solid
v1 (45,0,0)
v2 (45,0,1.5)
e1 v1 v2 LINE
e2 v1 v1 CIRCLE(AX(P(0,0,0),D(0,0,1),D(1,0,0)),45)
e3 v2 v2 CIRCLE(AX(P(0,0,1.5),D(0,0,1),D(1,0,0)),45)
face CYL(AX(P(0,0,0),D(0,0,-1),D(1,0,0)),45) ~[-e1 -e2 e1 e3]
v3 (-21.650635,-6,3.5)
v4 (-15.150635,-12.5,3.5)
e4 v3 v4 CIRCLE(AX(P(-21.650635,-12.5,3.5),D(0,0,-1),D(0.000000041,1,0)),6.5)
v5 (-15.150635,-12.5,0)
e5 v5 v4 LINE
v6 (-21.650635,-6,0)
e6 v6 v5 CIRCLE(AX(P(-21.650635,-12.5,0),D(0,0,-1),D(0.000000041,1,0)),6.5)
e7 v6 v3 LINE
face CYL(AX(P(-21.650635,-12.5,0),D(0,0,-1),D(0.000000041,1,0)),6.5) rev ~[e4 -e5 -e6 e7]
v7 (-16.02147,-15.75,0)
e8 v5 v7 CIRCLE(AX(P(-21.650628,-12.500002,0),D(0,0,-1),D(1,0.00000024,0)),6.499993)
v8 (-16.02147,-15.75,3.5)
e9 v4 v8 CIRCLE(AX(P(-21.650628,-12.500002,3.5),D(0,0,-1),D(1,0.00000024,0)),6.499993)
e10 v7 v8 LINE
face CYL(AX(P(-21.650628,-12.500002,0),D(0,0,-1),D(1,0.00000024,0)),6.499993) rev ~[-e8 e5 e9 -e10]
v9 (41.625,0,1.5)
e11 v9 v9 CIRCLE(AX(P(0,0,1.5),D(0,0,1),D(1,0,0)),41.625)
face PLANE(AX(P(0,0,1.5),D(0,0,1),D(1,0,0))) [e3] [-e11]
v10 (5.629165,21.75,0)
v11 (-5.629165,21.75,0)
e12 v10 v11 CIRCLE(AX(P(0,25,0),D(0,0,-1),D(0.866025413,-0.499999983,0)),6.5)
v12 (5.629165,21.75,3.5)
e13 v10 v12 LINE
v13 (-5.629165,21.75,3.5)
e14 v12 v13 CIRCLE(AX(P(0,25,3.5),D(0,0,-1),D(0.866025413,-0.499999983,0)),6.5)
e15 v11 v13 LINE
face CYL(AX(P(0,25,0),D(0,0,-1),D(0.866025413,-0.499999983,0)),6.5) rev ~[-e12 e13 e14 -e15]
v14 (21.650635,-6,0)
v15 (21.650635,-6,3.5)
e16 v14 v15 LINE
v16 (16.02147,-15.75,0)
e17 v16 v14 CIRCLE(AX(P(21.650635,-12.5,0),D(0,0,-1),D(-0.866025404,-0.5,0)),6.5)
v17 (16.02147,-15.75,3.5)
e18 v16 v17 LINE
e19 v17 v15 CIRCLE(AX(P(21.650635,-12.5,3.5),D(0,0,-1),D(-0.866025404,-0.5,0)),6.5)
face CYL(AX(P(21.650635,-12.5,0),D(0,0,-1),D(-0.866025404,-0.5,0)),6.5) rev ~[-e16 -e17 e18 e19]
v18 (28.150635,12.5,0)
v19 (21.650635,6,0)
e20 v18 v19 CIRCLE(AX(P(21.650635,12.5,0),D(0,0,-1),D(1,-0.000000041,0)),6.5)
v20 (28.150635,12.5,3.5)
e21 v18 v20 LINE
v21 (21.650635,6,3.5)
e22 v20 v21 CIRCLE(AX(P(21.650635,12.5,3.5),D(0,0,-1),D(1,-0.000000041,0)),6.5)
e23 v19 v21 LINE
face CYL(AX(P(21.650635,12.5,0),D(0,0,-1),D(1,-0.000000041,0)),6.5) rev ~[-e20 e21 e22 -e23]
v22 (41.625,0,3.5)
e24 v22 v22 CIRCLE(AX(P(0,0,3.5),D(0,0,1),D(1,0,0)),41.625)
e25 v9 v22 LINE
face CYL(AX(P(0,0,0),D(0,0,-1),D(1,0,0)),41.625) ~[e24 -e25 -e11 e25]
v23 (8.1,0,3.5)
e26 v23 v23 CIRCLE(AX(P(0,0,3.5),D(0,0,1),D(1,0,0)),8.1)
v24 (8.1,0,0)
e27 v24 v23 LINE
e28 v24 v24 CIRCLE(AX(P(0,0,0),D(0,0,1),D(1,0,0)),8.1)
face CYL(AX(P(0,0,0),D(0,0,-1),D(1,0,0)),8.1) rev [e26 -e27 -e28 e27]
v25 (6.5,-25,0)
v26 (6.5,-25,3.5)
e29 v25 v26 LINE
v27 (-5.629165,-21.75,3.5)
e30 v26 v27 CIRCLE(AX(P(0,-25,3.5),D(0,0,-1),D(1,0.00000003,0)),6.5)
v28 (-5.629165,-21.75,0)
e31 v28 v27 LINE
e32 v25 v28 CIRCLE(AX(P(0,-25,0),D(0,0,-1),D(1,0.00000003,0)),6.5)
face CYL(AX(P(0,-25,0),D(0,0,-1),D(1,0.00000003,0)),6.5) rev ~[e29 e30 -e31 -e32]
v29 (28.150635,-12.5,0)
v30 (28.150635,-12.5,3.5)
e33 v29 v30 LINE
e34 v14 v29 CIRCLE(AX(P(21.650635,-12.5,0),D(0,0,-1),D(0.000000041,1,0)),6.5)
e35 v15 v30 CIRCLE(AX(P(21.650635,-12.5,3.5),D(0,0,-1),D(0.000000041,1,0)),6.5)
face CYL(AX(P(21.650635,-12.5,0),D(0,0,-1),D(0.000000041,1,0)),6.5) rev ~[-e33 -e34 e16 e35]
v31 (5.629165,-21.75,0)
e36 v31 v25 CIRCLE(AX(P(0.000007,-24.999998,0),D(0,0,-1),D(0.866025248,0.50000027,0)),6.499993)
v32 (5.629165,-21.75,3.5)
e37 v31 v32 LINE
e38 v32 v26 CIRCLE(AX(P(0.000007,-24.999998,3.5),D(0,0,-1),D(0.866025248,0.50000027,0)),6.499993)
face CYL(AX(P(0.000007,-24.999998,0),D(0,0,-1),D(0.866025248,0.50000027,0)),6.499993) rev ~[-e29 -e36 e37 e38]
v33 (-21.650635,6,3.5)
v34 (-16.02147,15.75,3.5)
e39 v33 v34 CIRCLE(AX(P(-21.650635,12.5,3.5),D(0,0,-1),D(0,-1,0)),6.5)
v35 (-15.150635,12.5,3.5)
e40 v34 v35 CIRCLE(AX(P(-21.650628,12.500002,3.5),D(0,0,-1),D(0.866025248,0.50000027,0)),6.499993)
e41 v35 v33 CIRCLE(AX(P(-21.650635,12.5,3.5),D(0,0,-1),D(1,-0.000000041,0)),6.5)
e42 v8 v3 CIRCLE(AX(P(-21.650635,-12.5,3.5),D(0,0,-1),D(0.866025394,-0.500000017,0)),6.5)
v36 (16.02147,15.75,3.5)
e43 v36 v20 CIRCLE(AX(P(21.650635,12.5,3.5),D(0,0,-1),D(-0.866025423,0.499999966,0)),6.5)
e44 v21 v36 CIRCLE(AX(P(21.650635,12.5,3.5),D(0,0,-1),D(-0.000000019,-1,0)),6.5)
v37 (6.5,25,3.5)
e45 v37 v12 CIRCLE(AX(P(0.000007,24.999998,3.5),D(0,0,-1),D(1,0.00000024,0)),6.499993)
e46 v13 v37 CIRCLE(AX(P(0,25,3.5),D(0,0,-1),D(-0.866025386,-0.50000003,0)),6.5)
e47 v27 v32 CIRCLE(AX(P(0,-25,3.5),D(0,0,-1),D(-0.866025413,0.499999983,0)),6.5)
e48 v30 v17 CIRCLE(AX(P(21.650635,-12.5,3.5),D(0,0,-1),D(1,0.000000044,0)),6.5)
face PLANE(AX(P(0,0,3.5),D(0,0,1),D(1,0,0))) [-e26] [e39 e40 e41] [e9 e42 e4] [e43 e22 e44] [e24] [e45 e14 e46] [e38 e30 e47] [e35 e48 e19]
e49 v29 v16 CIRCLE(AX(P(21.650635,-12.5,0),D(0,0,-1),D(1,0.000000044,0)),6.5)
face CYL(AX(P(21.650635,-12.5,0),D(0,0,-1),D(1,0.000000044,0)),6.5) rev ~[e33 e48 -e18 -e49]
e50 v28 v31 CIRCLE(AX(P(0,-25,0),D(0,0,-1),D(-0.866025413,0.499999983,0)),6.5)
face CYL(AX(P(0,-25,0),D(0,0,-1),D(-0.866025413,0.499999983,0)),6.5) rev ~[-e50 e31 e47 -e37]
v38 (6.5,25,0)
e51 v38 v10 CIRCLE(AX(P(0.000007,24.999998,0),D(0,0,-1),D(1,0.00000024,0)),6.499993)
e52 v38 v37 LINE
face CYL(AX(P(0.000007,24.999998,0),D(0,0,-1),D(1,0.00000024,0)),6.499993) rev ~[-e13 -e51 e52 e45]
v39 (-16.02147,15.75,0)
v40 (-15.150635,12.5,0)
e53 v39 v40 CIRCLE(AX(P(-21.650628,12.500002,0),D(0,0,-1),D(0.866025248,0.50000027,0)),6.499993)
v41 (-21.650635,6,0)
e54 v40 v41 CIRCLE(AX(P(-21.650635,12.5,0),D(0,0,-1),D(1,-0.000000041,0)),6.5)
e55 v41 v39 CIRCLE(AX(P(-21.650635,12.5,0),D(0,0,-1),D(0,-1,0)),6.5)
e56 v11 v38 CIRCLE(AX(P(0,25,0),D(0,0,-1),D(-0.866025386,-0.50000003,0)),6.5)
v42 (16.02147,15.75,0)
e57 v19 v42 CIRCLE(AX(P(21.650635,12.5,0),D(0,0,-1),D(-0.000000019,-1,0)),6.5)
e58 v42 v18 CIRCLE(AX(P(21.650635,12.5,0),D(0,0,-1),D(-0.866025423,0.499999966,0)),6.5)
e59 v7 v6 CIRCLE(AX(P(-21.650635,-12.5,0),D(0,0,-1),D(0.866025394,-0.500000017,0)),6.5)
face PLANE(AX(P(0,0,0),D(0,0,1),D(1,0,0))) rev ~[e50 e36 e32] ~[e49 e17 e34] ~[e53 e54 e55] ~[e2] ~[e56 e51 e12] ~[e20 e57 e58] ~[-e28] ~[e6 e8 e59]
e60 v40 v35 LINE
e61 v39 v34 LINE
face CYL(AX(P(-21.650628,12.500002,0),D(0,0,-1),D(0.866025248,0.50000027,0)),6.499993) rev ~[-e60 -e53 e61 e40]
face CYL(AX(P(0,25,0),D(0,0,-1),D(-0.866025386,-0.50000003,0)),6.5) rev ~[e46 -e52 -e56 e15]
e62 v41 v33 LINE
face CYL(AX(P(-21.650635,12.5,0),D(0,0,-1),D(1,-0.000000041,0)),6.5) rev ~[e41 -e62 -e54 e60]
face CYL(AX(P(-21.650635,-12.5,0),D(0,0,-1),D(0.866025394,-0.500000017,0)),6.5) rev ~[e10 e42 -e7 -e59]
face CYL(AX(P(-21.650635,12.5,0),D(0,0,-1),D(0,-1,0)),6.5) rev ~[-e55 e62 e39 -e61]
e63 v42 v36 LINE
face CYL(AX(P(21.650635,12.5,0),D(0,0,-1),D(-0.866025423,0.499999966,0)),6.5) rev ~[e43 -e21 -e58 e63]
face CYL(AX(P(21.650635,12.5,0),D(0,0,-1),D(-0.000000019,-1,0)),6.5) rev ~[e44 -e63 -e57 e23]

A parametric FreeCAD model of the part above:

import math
import FreeCAD as App
import Part
import Sketcher

doc = App.newDocument("Part")
params = doc.addObject("Spreadsheet::Sheet", "Params")
for row, (alias, value) in enumerate([
    ("sketch1_diameter", "16.2 mm"),
    ("sketch1_radius", "6.5 mm"),
    ("sketch1_diameter2", "83.25 mm"),
    ("pad1_length", "3.5 mm"),
    ("sketch2_diameter", "90 mm"),
    ("sketch2_diameter2", "83.25 mm"),
    ("pad2_length", "1.5 mm"),
], start=1):
    params.set(f"A{row}", alias)
    params.set(f"B{row}", "=" + value)
    params.setAlias(f"B{row}", alias)

body = doc.addObject("PartDesign::Body", "Body")

# Sketch on XY plane
sketch1 = body.newObject("Sketcher::SketchObject", "Sketch")
sketch1.AttachmentSupport = (doc.getObject("XY_Plane"), [""])
sketch1.MapMode = "FlatFace"
sketch1.addGeometry(Part.Circle(App.Vector(0, 0, 0), App.Vector(0, 0, 1), 41.6), False)
sketch1.addGeometry(Part.ArcOfCircle(Part.Circle(App.Vector(0, -25, 0), App.Vector(0, 0, 1), 6.5), math.radians(150), math.radians(360)), False)
sketch1.addGeometry(Part.ArcOfCircle(Part.Circle(App.Vector(0, -25, 0), App.Vector(0, 0, 1), 6.5), math.radians(30), math.radians(150)), False)
sketch1.addGeometry(Part.ArcOfCircle(Part.Circle(App.Vector(0, -25, 0), App.Vector(0, 0, 1), 6.5), math.radians(0), math.radians(30)), False)
sketch1.addGeometry(Part.ArcOfCircle(Part.Circle(App.Vector(-21.7, -12.5, 0), App.Vector(0, 0, 1), 6.5), math.radians(90), math.radians(330)), False)
sketch1.addGeometry(Part.ArcOfCircle(Part.Circle(App.Vector(-21.7, -12.5, 0), App.Vector(0, 0, 1), 6.5), math.radians(0), math.radians(90)), False)
sketch1.addGeometry(Part.ArcOfCircle(Part.Circle(App.Vector(-21.7, -12.5, 0), App.Vector(0, 0, 1), 6.5), math.radians(-30), math.radians(0)), False)
sketch1.addGeometry(Part.ArcOfCircle(Part.Circle(App.Vector(21.7, -12.5, 0), App.Vector(0, 0, 1), 6.5), math.radians(-150), math.radians(0)), False)
sketch1.addGeometry(Part.ArcOfCircle(Part.Circle(App.Vector(21.7, -12.5, 0), App.Vector(0, 0, 1), 6.5), math.radians(90), math.radians(210)), False)
sketch1.addGeometry(Part.ArcOfCircle(Part.Circle(App.Vector(21.7, -12.5, 0), App.Vector(0, 0, 1), 6.5), math.radians(0), math.radians(90)), False)
sketch1.addGeometry(Part.ArcOfCircle(Part.Circle(App.Vector(-21.7, 12.5, 0), App.Vector(0, 0, 1), 6.5), math.radians(30), math.radians(270)), False)
sketch1.addGeometry(Part.ArcOfCircle(Part.Circle(App.Vector(-21.7, 12.5, 0), App.Vector(0, 0, 1), 6.5), math.radians(0), math.radians(30)), False)
sketch1.addGeometry(Part.ArcOfCircle(Part.Circle(App.Vector(-21.7, 12.5, 0), App.Vector(0, 0, 1), 6.5), math.radians(-90), math.radians(0)), False)
sketch1.addGeometry(Part.Circle(App.Vector(0, 0, 0), App.Vector(0, 0, 1), 8.1), False)
sketch1.addGeometry(Part.ArcOfCircle(Part.Circle(App.Vector(0, 25, 0), App.Vector(0, 0, 1), 6.5), math.radians(0), math.radians(210)), False)
sketch1.addGeometry(Part.ArcOfCircle(Part.Circle(App.Vector(0, 25, 0), App.Vector(0, 0, 1), 6.5), math.radians(-30), math.radians(0)), False)
sketch1.addGeometry(Part.ArcOfCircle(Part.Circle(App.Vector(0, 25, 0), App.Vector(0, 0, 1), 6.5), math.radians(-150), math.radians(-30)), False)
sketch1.addGeometry(Part.ArcOfCircle(Part.Circle(App.Vector(21.7, 12.5, 0), App.Vector(0, 0, 1), 6.5), math.radians(-90), math.radians(0)), False)
sketch1.addGeometry(Part.ArcOfCircle(Part.Circle(App.Vector(21.7, 12.5, 0), App.Vector(0, 0, 1), 6.5), math.radians(150), math.radians(270)), False)
sketch1.addGeometry(Part.ArcOfCircle(Part.Circle(App.Vector(21.7, 12.5, 0), App.Vector(0, 0, 1), 6.5), math.radians(0), math.radians(150)), False)
sketch1.addConstraint(Sketcher.Constraint("Tangent", 1, 1, 2, 2))
sketch1.addConstraint(Sketcher.Constraint("Tangent", 2, 1, 3, 2))
sketch1.addConstraint(Sketcher.Constraint("Tangent", 3, 1, 1, 2))
sketch1.addConstraint(Sketcher.Constraint("Tangent", 4, 1, 5, 2))
sketch1.addConstraint(Sketcher.Constraint("Tangent", 5, 1, 6, 2))
sketch1.addConstraint(Sketcher.Constraint("Tangent", 6, 1, 4, 2))
sketch1.addConstraint(Sketcher.Constraint("Tangent", 7, 1, 8, 2))
sketch1.addConstraint(Sketcher.Constraint("Tangent", 8, 1, 9, 2))
sketch1.addConstraint(Sketcher.Constraint("Tangent", 9, 1, 7, 2))
sketch1.addConstraint(Sketcher.Constraint("Tangent", 10, 1, 11, 2))
sketch1.addConstraint(Sketcher.Constraint("Tangent", 11, 1, 12, 2))
sketch1.addConstraint(Sketcher.Constraint("Tangent", 12, 1, 10, 2))
sketch1.addConstraint(Sketcher.Constraint("Tangent", 14, 1, 15, 2))
sketch1.addConstraint(Sketcher.Constraint("Tangent", 15, 1, 16, 2))
sketch1.addConstraint(Sketcher.Constraint("Tangent", 16, 1, 14, 2))
sketch1.addConstraint(Sketcher.Constraint("Tangent", 17, 1, 18, 2))
sketch1.addConstraint(Sketcher.Constraint("Tangent", 18, 1, 19, 2))
sketch1.addConstraint(Sketcher.Constraint("Tangent", 19, 1, 17, 2))
sketch1.addConstraint(Sketcher.Constraint("Coincident", 0, 3, -1, 1))
sketch1.addConstraint(Sketcher.Constraint("Coincident", 13, 3, -1, 1))
sketch1.addConstraint(Sketcher.Constraint("Equal", 2, 4))
sketch1.addConstraint(Sketcher.Constraint("Equal", 5, 7))
sketch1.addConstraint(Sketcher.Constraint("Equal", 9, 10))
sketch1.addConstraint(Sketcher.Constraint("Equal", 12, 14))
sketch1.addConstraint(Sketcher.Constraint("Equal", 16, 17))
sketch1.addConstraint(Sketcher.Constraint("Symmetric", 7, 3, 10, 3, -1, 1))
sketch1.addConstraint(Sketcher.Constraint("Symmetric", 1, 3, 14, 3, -1, 1))
sketch1.addConstraint(Sketcher.Constraint("Symmetric", 4, 3, 17, 3, -1, 1))
sketch1.addConstraint(Sketcher.Constraint("Symmetric", 4, 3, 7, 3, -2))
sketch1.addConstraint(Sketcher.Constraint("Symmetric", 1, 1, 2, 1, -2))
sketch1.addConstraint(Sketcher.Constraint("Horizontal", 2, 3, 3, 1))
sketch1.addConstraint(Sketcher.Constraint("Horizontal", 9, 3, 5, 1))
sketch1.addConstraint(Sketcher.Constraint("Horizontal", 6, 1, 7, 1))
sketch1.addConstraint(Sketcher.Constraint("Horizontal", 5, 1, 9, 1))
sketch1.addConstraint(Sketcher.Constraint("Horizontal", 19, 3, 11, 1))
sketch1.addConstraint(Sketcher.Constraint("Horizontal", 16, 3, 14, 1))
sketch1.addConstraint(Sketcher.Constraint("Horizontal", 15, 1, 16, 1))
sketch1.addConstraint(Sketcher.Constraint("Horizontal", 10, 1, 18, 1))
sketch1.addConstraint(Sketcher.Constraint("Horizontal", 11, 1, 19, 1))
sketch1.addConstraint(Sketcher.Constraint("Vertical", 12, 3, 4, 1))
sketch1.addConstraint(Sketcher.Constraint("Vertical", 19, 3, 8, 1))
sketch1.addConstraint(Sketcher.Constraint("Vertical", 6, 1, 10, 1))
sketch1.addConstraint(Sketcher.Constraint("Vertical", 4, 1, 12, 1))
sketch1.addConstraint(Sketcher.Constraint("Vertical", 2, 1, 15, 1))
sketch1.addConstraint(Sketcher.Constraint("Vertical", 8, 1, 17, 1))
sketch1.addConstraint(Sketcher.Constraint("Diameter", 13, 16.2))
sketch1.addConstraint(Sketcher.Constraint("Radius", 1, 6.5))
sketch1.addConstraint(Sketcher.Constraint("Diameter", 0, 83.25))
sketch1.addConstraint(Sketcher.Constraint("DistanceY", 1, 3, -1, 1, 25.0))
sketch1.addConstraint(Sketcher.Constraint("DistanceY", 4, 1, -1, 1, 6.0))
sketch1.addConstraint(Sketcher.Constraint("DistanceY", 2, 1, 7, 1, 6.0))
sketch1.addConstraint(Sketcher.Constraint("DistanceY", 1, 1, -1, 1, 21.75))
sketch1.addConstraint(Sketcher.Constraint("DistanceX", 6, 3, -1, 1, 21.650628))
sketch1.setExpression("Constraints[45]", "Params.sketch1_diameter")
sketch1.setExpression("Constraints[46]", "Params.sketch1_radius")
sketch1.setExpression("Constraints[47]", "Params.sketch1_diameter2")
pad1 = body.newObject("PartDesign::Pad", "Pad")
pad1.Profile = sketch1
pad1.setExpression("Length", "Params.pad1_length")

# Sketch on XY plane
sketch2 = body.newObject("Sketcher::SketchObject", "Sketch001")
sketch2.AttachmentSupport = (doc.getObject("XY_Plane"), [""])
sketch2.MapMode = "FlatFace"
sketch2.addGeometry(Part.Circle(App.Vector(0, 0, 0), App.Vector(0, 0, 1), 45), False)
sketch2.addGeometry(Part.Circle(App.Vector(0, 0, 0), App.Vector(0, 0, 1), 42), False)
sketch2.addConstraint(Sketcher.Constraint("Coincident", 0, 3, -1, 1))
sketch2.addConstraint(Sketcher.Constraint("Coincident", 1, 3, -1, 1))
sketch2.addConstraint(Sketcher.Constraint("Diameter", 0, 90.0))
sketch2.addConstraint(Sketcher.Constraint("Diameter", 1, 83.25))
sketch2.setExpression("Constraints[2]", "Params.sketch2_diameter")
sketch2.setExpression("Constraints[3]", "Params.sketch2_diameter2")
pad2 = body.newObject("PartDesign::Pad", "Pad001")
pad2.Profile = sketch2
pad2.setExpression("Length", "Params.pad2_length")

doc.recompute()
